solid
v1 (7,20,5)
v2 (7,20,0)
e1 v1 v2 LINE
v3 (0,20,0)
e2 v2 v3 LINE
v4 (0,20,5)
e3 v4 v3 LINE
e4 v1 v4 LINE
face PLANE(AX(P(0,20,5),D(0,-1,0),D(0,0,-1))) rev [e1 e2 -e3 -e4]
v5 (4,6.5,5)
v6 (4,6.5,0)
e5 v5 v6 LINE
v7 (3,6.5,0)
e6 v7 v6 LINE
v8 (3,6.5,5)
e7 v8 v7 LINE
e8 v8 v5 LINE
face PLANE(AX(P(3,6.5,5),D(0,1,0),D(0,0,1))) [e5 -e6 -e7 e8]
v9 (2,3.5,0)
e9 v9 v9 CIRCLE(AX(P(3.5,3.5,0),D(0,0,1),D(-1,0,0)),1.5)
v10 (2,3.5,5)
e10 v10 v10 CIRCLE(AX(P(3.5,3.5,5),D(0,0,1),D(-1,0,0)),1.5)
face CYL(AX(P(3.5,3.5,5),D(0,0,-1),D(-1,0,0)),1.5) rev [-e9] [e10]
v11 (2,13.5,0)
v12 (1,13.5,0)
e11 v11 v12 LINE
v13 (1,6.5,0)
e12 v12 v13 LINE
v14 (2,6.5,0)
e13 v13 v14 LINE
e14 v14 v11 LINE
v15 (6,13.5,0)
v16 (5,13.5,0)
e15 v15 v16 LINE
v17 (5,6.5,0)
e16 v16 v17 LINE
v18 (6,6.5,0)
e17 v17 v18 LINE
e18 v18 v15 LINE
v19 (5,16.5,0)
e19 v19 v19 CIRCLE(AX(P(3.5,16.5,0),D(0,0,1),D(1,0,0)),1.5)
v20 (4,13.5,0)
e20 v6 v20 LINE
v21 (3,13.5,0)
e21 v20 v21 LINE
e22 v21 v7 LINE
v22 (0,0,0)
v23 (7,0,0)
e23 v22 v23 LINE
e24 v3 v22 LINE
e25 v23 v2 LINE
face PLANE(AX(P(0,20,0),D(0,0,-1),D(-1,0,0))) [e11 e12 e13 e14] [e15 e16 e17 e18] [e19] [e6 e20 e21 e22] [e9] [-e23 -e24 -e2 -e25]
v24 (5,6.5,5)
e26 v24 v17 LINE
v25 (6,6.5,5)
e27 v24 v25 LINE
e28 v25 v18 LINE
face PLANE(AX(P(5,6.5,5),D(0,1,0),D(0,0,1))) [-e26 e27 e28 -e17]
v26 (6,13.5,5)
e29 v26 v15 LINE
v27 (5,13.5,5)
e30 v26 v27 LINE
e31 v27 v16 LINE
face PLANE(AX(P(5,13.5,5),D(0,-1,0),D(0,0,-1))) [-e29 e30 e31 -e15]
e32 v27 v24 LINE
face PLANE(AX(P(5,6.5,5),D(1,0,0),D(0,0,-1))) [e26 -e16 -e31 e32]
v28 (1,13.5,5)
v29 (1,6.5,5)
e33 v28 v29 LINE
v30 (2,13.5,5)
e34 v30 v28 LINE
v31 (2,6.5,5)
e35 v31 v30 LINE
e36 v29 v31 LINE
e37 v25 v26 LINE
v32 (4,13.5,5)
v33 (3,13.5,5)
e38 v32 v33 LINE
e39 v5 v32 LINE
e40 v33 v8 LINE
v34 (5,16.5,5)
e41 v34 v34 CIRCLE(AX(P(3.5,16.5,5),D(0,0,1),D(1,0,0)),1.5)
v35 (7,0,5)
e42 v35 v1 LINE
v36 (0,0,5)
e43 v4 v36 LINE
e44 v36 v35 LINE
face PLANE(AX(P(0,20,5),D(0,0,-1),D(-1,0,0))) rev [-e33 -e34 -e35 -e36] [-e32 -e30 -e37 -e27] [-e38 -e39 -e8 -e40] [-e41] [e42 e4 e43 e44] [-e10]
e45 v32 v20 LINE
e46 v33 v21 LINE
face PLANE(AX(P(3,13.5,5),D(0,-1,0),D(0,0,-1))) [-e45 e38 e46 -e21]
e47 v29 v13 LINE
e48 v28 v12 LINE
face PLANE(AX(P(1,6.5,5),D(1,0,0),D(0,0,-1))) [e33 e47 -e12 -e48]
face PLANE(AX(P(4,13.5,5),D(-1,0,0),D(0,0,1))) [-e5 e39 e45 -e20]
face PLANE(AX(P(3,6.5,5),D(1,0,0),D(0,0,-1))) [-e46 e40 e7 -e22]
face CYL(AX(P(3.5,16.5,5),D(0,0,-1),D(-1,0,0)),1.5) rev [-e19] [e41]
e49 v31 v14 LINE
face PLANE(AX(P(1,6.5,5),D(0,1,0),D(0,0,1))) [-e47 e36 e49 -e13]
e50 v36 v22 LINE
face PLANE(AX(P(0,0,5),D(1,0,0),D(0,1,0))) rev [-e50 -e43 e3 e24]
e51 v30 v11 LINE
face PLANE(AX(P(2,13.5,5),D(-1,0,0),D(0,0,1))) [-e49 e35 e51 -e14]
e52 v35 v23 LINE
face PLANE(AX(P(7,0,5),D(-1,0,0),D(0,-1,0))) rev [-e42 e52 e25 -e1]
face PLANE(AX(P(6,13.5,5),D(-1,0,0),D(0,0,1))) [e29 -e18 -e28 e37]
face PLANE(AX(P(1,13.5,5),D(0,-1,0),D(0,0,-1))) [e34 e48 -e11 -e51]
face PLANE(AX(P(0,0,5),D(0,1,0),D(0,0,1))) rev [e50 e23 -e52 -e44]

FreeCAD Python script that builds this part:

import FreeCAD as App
import Part
import Sketcher


def add_polygon(sketch, points):
    """Adds a closed chain of lines whose ends are joined by coincident constraints."""
    first, n = sketch.GeometryCount, len(points)
    for a, b in zip(points, points[1:] + points[:1]):
        sketch.addGeometry(Part.LineSegment(App.Vector(*a, 0), App.Vector(*b, 0)), False)
    for i in range(n):
        sketch.addConstraint(Sketcher.Constraint("Coincident", first + i, 2, first + (i + 1) % n, 1))

doc = App.newDocument("Part")
body = doc.addObject("PartDesign::Body", "Body")

sketch1 = body.newObject("Sketcher::SketchObject", "Sketch")
sketch1.AttachmentSupport = (doc.getObject("XY_Plane"), [""])
sketch1.MapMode = "FlatFace"
add_polygon(sketch1, [(0, 20), (0, 0), (7, 0), (7, 20)])
sketch1.addGeometry(Part.Circle(App.Vector(3.5, 3.5, 0), App.Vector(0, 0, 1), 1.5), False)
add_polygon(sketch1, [(2, 6.5), (1, 6.5), (1, 13.5), (2, 13.5)])
add_polygon(sketch1, [(4, 6.5), (3, 6.5), (3, 13.5), (4, 13.5)])
add_polygon(sketch1, [(6, 6.5), (5, 6.5), (5, 13.5), (6, 13.5)])
sketch1.addGeometry(Part.Circle(App.Vector(3.5, 16.5, 0), App.Vector(0, 0, 1), 1.5), False)
sketch1.addConstraint(Sketcher.Constraint("Vertical", 0))
sketch1.addConstraint(Sketcher.Constraint("Horizontal", 1))
sketch1.addConstraint(Sketcher.Constraint("Vertical", 2))
sketch1.addConstraint(Sketcher.Constraint("Horizontal", 3))
sketch1.addConstraint(Sketcher.Constraint("Horizontal", 5))
sketch1.addConstraint(Sketcher.Constraint("Vertical", 6))
sketch1.addConstraint(Sketcher.Constraint("Horizontal", 7))
sketch1.addConstraint(Sketcher.Constraint("Vertical", 8))
sketch1.addConstraint(Sketcher.Constraint("Horizontal", 9))
sketch1.addConstraint(Sketcher.Constraint("Vertical", 10))
sketch1.addConstraint(Sketcher.Constraint("Horizontal", 11))
sketch1.addConstraint(Sketcher.Constraint("Vertical", 12))
sketch1.addConstraint(Sketcher.Constraint("Horizontal", 13))
sketch1.addConstraint(Sketcher.Constraint("Vertical", 14))
sketch1.addConstraint(Sketcher.Constraint("Horizontal", 15))
sketch1.addConstraint(Sketcher.Constraint("Vertical", 16))
sketch1.addConstraint(Sketcher.Constraint("Coincident", 0, 2, -1, 1))
sketch1.addConstraint(Sketcher.Constraint("Equal", 4, 17))
sketch1.addConstraint(Sketcher.Constraint("Horizontal", 8, 2, 9, 2))
sketch1.addConstraint(Sketcher.Constraint("Horizontal", 7, 2, 10, 2))
sketch1.addConstraint(Sketcher.Constraint("Horizontal", 12, 2, 13, 2))
sketch1.addConstraint(Sketcher.Constraint("Horizontal", 11, 2, 14, 2))
sketch1.addConstraint(Sketcher.Constraint("Vertical", 4, 3, 17, 3))
sketch1.addConstraint(Sketcher.Constraint("Equal", 7, 9))
sketch1.addConstraint(Sketcher.Constraint("Equal", 11, 13))
sketch1.addConstraint(Sketcher.Constraint("Equal", 3, 6))
sketch1.addConstraint(Sketcher.Constraint("Diameter", 4, 3.0))
sketch1.addConstraint(Sketcher.Constraint("DistanceX", 1, 1, 1, 2, 7.0))
sketch1.addConstraint(Sketcher.Constraint("DistanceX", 5, 2, 5, 1, 1.0))
sketch1.addConstraint(Sketcher.Constraint("DistanceY", 0, 2, 0, 1, 20.0))
sketch1.addConstraint(Sketcher.Constraint("DistanceX", -1, 1, 5, 2, 1.0))
sketch1.addConstraint(Sketcher.Constraint("DistanceX", -1, 1, 9, 2, 3.0))
sketch1.addConstraint(Sketcher.Constraint("DistanceX", -1, 1, 13, 2, 5.0))
sketch1.addConstraint(Sketcher.Constraint("DistanceY", 4, 3, 17, 3, 13.0))
sketch1.addConstraint(Sketcher.Constraint("DistanceY", 4, 3, 5, 2, 3.0))
sketch1.addConstraint(Sketcher.Constraint("DistanceX", -1, 1, 4, 3, 3.5))
sketch1.addConstraint(Sketcher.Constraint("DistanceY", -1, 1, 4, 3, 3.5))
pad1 = body.newObject("PartDesign::Pad", "Pad")
pad1.Profile = sketch1
pad1.Length = 5

doc.recompute()
